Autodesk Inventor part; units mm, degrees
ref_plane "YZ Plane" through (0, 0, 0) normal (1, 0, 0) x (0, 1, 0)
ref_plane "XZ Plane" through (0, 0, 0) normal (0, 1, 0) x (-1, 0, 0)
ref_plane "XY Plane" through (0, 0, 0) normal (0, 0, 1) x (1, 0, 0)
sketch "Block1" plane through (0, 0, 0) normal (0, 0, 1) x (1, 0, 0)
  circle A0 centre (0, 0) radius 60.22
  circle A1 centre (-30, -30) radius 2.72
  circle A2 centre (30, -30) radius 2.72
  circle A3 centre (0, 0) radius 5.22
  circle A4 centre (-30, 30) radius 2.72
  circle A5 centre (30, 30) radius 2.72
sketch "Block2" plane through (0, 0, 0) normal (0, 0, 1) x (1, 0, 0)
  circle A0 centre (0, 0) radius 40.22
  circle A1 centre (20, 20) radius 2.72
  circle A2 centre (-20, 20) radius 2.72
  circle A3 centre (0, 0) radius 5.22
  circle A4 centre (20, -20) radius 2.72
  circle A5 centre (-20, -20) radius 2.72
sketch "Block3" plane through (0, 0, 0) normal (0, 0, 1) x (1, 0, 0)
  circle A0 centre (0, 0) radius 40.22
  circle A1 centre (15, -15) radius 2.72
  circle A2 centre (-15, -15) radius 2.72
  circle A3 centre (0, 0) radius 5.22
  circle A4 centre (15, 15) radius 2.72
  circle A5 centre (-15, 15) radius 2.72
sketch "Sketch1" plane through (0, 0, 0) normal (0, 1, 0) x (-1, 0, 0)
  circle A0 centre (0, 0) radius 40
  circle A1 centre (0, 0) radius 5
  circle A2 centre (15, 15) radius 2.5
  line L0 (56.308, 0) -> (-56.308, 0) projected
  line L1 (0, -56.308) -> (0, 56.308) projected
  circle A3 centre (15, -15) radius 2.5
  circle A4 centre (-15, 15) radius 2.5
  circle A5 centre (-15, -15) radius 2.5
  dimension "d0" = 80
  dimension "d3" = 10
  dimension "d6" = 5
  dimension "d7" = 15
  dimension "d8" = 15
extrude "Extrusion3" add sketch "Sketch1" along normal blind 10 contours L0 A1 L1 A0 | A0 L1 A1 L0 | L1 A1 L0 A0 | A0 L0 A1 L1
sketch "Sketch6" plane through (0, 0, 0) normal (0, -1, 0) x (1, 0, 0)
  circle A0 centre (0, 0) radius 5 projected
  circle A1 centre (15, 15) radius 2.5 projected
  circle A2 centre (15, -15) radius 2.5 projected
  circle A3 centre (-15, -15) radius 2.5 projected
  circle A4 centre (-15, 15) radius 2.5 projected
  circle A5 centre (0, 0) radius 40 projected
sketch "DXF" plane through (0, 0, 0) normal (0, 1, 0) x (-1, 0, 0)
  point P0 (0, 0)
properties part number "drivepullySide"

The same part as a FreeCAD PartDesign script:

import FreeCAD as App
import Part
import Sketcher
Q = App.Units.Quantity

doc = App.newDocument("Part")
body = doc.addObject("PartDesign::Body", "Body")

sketch1 = body.newObject("Sketcher::SketchObject", "Sketch")
sketch1.AttachmentSupport = (doc.getObject("XZ_Plane"), [""])
sketch1.MapMode = "FlatFace"
sketch1.addGeometry(Part.Circle(App.Vector(0, 0, 0), App.Vector(0, 0, 1), 40), False)
sketch1.addGeometry(Part.Circle(App.Vector(0, 0, 0), App.Vector(0, 0, 1), 5), False)
sketch1.addGeometry(Part.Circle(App.Vector(-15, 15, 0), App.Vector(0, 0, 1), 2.5), False)
sketch1.addGeometry(Part.Circle(App.Vector(-15, -15, 0), App.Vector(0, 0, 1), 2.5), False)
sketch1.addGeometry(Part.Circle(App.Vector(15, 15, 0), App.Vector(0, 0, 1), 2.5), False)
sketch1.addGeometry(Part.Circle(App.Vector(15, -15, 0), App.Vector(0, 0, 1), 2.5), False)
sketch1.addConstraint(Sketcher.Constraint("Coincident", 0, 3, -1, 1))
sketch1.addConstraint(Sketcher.Constraint("Coincident", 1, 3, -1, 1))
sketch1.addConstraint(Sketcher.Constraint("Equal", 2, 3))
sketch1.addConstraint(Sketcher.Constraint("Equal", 3, 4))
sketch1.addConstraint(Sketcher.Constraint("Equal", 4, 5))
sketch1.addConstraint(Sketcher.Constraint("Symmetric", 3, 3, 4, 3, -1, 1))
sketch1.addConstraint(Sketcher.Constraint("Symmetric", 2, 3, 5, 3, -1, 1))
sketch1.addConstraint(Sketcher.Constraint("Symmetric", 2, 3, 4, 3, -2))
sketch1.addConstraint(Sketcher.Constraint("Diameter", 0, Q("80 mm")))
sketch1.addConstraint(Sketcher.Constraint("Diameter", 1, Q("10 mm")))
sketch1.addConstraint(Sketcher.Constraint("Diameter", 2, Q("5 mm")))
sketch1.addConstraint(Sketcher.Constraint("DistanceX", 2, 3, -1, 1, Q("15 mm")))
sketch1.addConstraint(Sketcher.Constraint("DistanceY", -1, 1, 2, 3, Q("15 mm")))
pad1 = body.newObject("PartDesign::Pad", "Pad")
pad1.Profile = sketch1
pad1.Length = 10
pad1.Reversed = True

doc.recompute()
